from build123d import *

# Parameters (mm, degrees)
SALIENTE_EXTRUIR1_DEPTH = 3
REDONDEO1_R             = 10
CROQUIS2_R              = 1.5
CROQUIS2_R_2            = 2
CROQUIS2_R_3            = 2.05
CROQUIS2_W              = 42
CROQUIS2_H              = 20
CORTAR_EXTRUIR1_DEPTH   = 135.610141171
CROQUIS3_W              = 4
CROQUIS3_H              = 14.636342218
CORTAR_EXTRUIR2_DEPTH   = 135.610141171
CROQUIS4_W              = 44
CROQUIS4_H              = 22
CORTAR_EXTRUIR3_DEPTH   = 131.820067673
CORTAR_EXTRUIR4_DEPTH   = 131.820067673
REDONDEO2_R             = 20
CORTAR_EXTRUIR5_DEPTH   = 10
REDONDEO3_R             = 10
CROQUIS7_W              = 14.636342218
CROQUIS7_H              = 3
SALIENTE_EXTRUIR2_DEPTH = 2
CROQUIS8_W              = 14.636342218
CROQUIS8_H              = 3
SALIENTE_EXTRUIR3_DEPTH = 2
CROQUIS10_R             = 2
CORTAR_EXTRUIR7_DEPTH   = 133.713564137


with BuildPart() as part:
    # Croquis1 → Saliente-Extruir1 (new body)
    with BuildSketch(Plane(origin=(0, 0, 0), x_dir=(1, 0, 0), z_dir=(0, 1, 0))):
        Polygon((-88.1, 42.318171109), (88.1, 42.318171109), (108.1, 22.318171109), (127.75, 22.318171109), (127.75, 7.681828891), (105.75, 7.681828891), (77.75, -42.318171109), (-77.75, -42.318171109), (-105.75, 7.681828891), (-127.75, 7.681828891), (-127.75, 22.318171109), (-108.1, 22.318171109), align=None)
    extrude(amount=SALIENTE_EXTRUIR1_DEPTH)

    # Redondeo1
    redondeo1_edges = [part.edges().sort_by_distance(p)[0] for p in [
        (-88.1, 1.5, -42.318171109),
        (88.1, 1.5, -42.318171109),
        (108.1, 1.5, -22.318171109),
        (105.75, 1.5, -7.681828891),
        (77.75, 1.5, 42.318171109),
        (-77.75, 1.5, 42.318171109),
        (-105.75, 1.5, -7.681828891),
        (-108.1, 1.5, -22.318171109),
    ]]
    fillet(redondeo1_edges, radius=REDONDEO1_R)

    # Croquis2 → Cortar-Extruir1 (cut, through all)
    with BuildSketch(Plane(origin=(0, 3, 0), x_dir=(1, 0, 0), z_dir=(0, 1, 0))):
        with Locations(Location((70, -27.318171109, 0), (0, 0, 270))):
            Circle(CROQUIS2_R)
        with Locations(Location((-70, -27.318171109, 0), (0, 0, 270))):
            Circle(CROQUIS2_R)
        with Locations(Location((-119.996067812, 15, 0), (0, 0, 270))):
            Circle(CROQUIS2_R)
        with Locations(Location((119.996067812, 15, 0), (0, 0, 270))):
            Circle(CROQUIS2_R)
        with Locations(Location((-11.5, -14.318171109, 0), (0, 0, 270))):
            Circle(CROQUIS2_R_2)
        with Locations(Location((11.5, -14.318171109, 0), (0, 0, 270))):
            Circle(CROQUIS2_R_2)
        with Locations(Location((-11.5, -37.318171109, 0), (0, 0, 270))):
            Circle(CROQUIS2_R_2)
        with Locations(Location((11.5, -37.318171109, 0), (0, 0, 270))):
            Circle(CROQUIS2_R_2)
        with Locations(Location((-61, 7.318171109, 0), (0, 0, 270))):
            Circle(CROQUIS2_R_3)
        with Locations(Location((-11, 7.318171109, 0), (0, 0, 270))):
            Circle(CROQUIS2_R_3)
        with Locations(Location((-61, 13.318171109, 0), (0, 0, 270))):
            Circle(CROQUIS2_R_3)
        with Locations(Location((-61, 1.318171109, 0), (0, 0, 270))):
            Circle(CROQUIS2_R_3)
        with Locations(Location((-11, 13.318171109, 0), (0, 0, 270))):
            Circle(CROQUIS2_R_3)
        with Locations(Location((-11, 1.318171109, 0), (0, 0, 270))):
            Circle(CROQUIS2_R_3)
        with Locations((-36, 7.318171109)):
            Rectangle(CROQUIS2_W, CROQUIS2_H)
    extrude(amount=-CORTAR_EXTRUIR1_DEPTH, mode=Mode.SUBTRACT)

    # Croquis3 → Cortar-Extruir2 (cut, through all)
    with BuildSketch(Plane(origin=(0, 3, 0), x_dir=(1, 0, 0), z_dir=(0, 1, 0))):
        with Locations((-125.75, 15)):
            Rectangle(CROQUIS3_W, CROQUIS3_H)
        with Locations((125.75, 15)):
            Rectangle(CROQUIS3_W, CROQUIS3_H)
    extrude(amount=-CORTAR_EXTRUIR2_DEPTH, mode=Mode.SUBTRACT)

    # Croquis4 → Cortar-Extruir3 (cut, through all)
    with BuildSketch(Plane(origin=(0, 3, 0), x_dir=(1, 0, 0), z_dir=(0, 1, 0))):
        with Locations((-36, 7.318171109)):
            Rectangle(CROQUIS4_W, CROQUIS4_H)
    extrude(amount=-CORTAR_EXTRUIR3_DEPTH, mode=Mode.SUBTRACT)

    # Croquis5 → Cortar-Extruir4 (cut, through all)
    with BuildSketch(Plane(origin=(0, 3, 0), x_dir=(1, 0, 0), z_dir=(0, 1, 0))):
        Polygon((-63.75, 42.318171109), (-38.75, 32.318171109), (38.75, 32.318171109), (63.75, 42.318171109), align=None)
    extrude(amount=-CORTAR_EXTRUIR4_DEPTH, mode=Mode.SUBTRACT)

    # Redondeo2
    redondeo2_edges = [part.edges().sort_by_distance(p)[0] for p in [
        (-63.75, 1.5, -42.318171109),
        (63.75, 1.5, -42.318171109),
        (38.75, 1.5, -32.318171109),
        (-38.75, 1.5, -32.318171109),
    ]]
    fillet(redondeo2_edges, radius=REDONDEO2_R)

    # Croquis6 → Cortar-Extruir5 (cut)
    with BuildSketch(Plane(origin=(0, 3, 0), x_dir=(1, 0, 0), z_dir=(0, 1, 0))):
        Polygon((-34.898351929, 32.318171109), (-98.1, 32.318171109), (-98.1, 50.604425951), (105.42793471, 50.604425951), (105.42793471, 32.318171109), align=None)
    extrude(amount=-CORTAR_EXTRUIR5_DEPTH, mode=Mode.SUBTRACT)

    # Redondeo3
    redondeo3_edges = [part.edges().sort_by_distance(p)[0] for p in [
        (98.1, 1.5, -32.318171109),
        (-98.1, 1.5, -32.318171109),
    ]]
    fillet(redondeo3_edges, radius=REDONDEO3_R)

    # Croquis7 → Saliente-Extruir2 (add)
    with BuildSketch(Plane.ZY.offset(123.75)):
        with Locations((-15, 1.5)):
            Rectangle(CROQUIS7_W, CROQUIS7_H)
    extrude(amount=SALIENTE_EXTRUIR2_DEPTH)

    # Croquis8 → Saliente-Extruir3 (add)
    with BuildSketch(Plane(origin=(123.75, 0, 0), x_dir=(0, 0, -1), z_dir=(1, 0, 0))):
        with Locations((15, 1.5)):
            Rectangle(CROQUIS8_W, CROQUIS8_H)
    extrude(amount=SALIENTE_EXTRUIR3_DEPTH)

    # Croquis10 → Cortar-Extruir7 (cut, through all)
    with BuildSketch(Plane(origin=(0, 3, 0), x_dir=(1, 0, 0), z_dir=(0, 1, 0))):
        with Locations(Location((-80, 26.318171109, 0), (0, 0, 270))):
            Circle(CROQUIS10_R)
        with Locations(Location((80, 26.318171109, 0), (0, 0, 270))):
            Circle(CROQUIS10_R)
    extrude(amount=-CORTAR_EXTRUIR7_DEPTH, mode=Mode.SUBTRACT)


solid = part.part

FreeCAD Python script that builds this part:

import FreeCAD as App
import Part
import Sketcher
from FreeCAD import Vector


def edges_at(feature, points):
    """Names of the edges that pass closest to the given points."""
    edges = feature.Shape.Edges
    near = lambda p: min(range(len(edges)), key=lambda i: edges[i].distToShape(Part.Vertex(*p))[0])
    return sorted({f"Edge{near(p) + 1}" for p in points})

doc = App.newDocument("Part")
params = doc.addObject("Spreadsheet::Sheet", "Params")
for row, (alias, value) in enumerate([
    ("sketch1_width", "22 mm"),
    ("sketch1_width2", "176.2 mm"),
    ("sketch1_width3", "155.5 mm"),
    ("pad1_length", "3 mm"),
    ("fillet_radius", "10 mm"),
    ("sketch2_diameter", "3 mm"),
    ("sketch2_diameter2", "4 mm"),
    ("sketch2_diameter3", "4.1 mm"),
    ("sketch2_width", "42 mm"),
    ("sketch2_height", "20 mm"),
    ("sketch3_width", "4 mm"),
    ("sketch4_width", "44 mm"),
    ("sketch4_height", "22 mm"),
    ("sketch5_width", "77.5 mm"),
    ("sketch5_width2", "127.5 mm"),
    ("fillet2_radius", "20 mm"),
    ("pocket5_length", "10 mm"),
    ("fillet3_radius", "10 mm"),
    ("sketch7_width", "3 mm"),
    ("pad2_length", "2 mm"),
    ("sketch8_width", "3 mm"),
    ("pad3_length", "2 mm"),
    ("sketch9_diameter", "4 mm"),
], start=1):
    params.set(f"A{row}", alias)
    params.set(f"B{row}", "=" + value)
    params.setAlias(f"B{row}", alias)

body = doc.addObject("PartDesign::Body", "Body")

# Sketch on XZ plane
sketch1 = body.newObject("Sketcher::SketchObject", "Sketch")
sketch1.AttachmentSupport = (doc.getObject("XZ_Plane"), [""])
sketch1.MapMode = "FlatFace"
sketch1.addGeometry([
    Part.LineSegment(Vector(88, -42, 0), Vector(-88, -42, 0)),  # 0
    Part.LineSegment(Vector(-88, -42, 0), Vector(-108, -22, 0)),  # 1
    Part.LineSegment(Vector(-108, -22, 0), Vector(-128, -22, 0)),  # 2
    Part.LineSegment(Vector(-128, -22, 0), Vector(-128, -8, 0)),  # 3
    Part.LineSegment(Vector(-128, -8, 0), Vector(-106, -8, 0)),  # 4
    Part.LineSegment(Vector(-106, -8, 0), Vector(-78, 42, 0)),  # 5
    Part.LineSegment(Vector(-78, 42, 0), Vector(78, 42, 0)),  # 6
    Part.LineSegment(Vector(78, 42, 0), Vector(106, -8, 0)),  # 7
    Part.LineSegment(Vector(106, -8, 0), Vector(128, -8, 0)),  # 8
    Part.LineSegment(Vector(128, -8, 0), Vector(128, -22, 0)),  # 9
    Part.LineSegment(Vector(128, -22, 0), Vector(108, -22, 0)),  # 10
    Part.LineSegment(Vector(108, -22, 0), Vector(88, -42, 0)),  # 11
], False)
sketch1.addConstraint([
    Sketcher.Constraint("Coincident", 0, 2, 1, 1),
    Sketcher.Constraint("Coincident", 1, 2, 2, 1),
    Sketcher.Constraint("Coincident", 2, 2, 3, 1),
    Sketcher.Constraint("Coincident", 3, 2, 4, 1),
    Sketcher.Constraint("Coincident", 4, 2, 5, 1),
    Sketcher.Constraint("Coincident", 5, 2, 6, 1),
    Sketcher.Constraint("Coincident", 6, 2, 7, 1),
    Sketcher.Constraint("Coincident", 7, 2, 8, 1),
    Sketcher.Constraint("Coincident", 8, 2, 9, 1),
    Sketcher.Constraint("Coincident", 9, 2, 10, 1),
    Sketcher.Constraint("Coincident", 10, 2, 11, 1),
    Sketcher.Constraint("Coincident", 11, 2, 0, 1),
    Sketcher.Constraint("Horizontal", 0),
    Sketcher.Constraint("Horizontal", 2),
    Sketcher.Constraint("Vertical", 3),
    Sketcher.Constraint("Horizontal", 4),
    Sketcher.Constraint("Horizontal", 6),
    Sketcher.Constraint("Horizontal", 8),
    Sketcher.Constraint("Vertical", 9),
    Sketcher.Constraint("Horizontal", 10),
    Sketcher.Constraint("Symmetric", 4, 2, 7, 2, -2),
    Sketcher.Constraint("Symmetric", 2, 2, 9, 2, -2),
    Sketcher.Constraint("Perpendicular", 1, 11),
    Sketcher.Constraint("Equal", 2, 10),
    Sketcher.Constraint("Equal", 5, 7),
    Sketcher.Constraint("Equal", 1, 11),
    Sketcher.Constraint("DistanceX", 4, 1, 4, 2, 22.0),
    Sketcher.Constraint("DistanceX", 0, 2, 0, 1, 176.2),
    Sketcher.Constraint("DistanceX", 6, 1, 6, 2, 155.5),
    Sketcher.Constraint("DistanceX", 1, 2, 0, 2, 20.0),
    Sketcher.Constraint("DistanceX", 4, 2, 5, 2, 28.0),
    Sketcher.Constraint("DistanceY", 4, 2, 5, 2, 50.0),
    Sketcher.Constraint("DistanceY", 3, 1, 3, 2, 14.636342),
    Sketcher.Constraint("DistanceY", 0, 2, -1, 1, 42.318171),
])
sketch1.setExpression("Constraints[26]", "Params.sketch1_width")
sketch1.setExpression("Constraints[27]", "Params.sketch1_width2")
sketch1.setExpression("Constraints[28]", "Params.sketch1_width3")
pad1 = body.newObject("PartDesign::Pad", "Pad")
pad1.Profile = sketch1
pad1.setExpression("Length", "Params.pad1_length")
pad1.Reversed = True
doc.recompute()

fillet = body.newObject("PartDesign::Fillet", "Fillet")
fillet.Base = (pad1, edges_at(pad1, [
    (-88.1, 1.5, -42.318),
    (88.1, 1.5, -42.318),
    (108.1, 1.5, -22.318),
    (105.75, 1.5, -7.682),
    (77.75, 1.5, 42.318),
    (-77.75, 1.5, 42.318),
    (-105.75, 1.5, -7.682),
    (-108.1, 1.5, -22.318),
]))
fillet.setExpression("Radius", "Params.fillet_radius")

# Sketch on XZ plane
sketch2 = body.newObject("Sketcher::SketchObject", "Sketch001")
sketch2.AttachmentSupport = (doc.getObject("XZ_Plane"), [""])
sketch2.MapMode = "FlatFace"
sketch2.AttachmentOffset = App.Placement(Vector(0, 0, -3), App.Rotation())
sketch2.addGeometry([
    Part.Circle(Vector(70, 27.3, 0), Vector(0, 0, 1), 1.5),  # 0
    Part.Circle(Vector(-70, 27.3, 0), Vector(0, 0, 1), 1.5),  # 1
    Part.Circle(Vector(-120, -15, 0), Vector(0, 0, 1), 1.5),  # 2
    Part.Circle(Vector(120, -15, 0), Vector(0, 0, 1), 1.5),  # 3
    Part.Circle(Vector(-11.5, 14.3, 0), Vector(0, 0, 1), 2),  # 4
    Part.Circle(Vector(11.5, 14.3, 0), Vector(0, 0, 1), 2),  # 5
    Part.Circle(Vector(-11.5, 37.3, 0), Vector(0, 0, 1), 2),  # 6
    Part.Circle(Vector(11.5, 37.3, 0), Vector(0, 0, 1), 2),  # 7
    Part.Circle(Vector(-61, -7.3, 0), Vector(0, 0, 1), 2),  # 8
    Part.Circle(Vector(-11, -7.3, 0), Vector(0, 0, 1), 2),  # 9
    Part.Circle(Vector(-61, -13.3, 0), Vector(0, 0, 1), 2),  # 10
    Part.Circle(Vector(-61, -1.3, 0), Vector(0, 0, 1), 2),  # 11
    Part.Circle(Vector(-11, -13.3, 0), Vector(0, 0, 1), 2),  # 12
    Part.Circle(Vector(-11, -1.3, 0), Vector(0, 0, 1), 2),  # 13
    Part.LineSegment(Vector(-57, -17.3, 0), Vector(-57, 2.7, 0)),  # 14
    Part.LineSegment(Vector(-57, 2.7, 0), Vector(-15, 2.7, 0)),  # 15
    Part.LineSegment(Vector(-15, 2.7, 0), Vector(-15, -17.3, 0)),  # 16
    Part.LineSegment(Vector(-15, -17.3, 0), Vector(-57, -17.3, 0)),  # 17
], False)
sketch2.addConstraint([
    Sketcher.Constraint("Coincident", 14, 2, 15, 1),
    Sketcher.Constraint("Coincident", 15, 2, 16, 1),
    Sketcher.Constraint("Coincident", 16, 2, 17, 1),
    Sketcher.Constraint("Coincident", 17, 2, 14, 1),
    Sketcher.Constraint("Vertical", 14),
    Sketcher.Constraint("Horizontal", 15),
    Sketcher.Constraint("Vertical", 16),
    Sketcher.Constraint("Horizontal", 17),
    Sketcher.Constraint("Equal", 0, 1),
    Sketcher.Constraint("Equal", 1, 2),
    Sketcher.Constraint("Equal", 2, 3),
    Sketcher.Constraint("Equal", 4, 5),
    Sketcher.Constraint("Equal", 5, 6),
    Sketcher.Constraint("Equal", 6, 7),
    Sketcher.Constraint("Equal", 8, 9),
    Sketcher.Constraint("Equal", 9, 10),
    Sketcher.Constraint("Equal", 10, 11),
    Sketcher.Constraint("Equal", 11, 12),
    Sketcher.Constraint("Equal", 12, 13),
    Sketcher.Constraint("Symmetric", 0, 3, 1, 3, -2),
    Sketcher.Constraint("Symmetric", 2, 3, 3, 3, -2),
    Sketcher.Constraint("Symmetric", 4, 3, 5, 3, -2),
    Sketcher.Constraint("Symmetric", 6, 3, 7, 3, -2),
    Sketcher.Constraint("Horizontal", 8, 3, 9, 3),
    Sketcher.Constraint("Horizontal", 10, 3, 12, 3),
    Sketcher.Constraint("Horizontal", 11, 3, 13, 3),
    Sketcher.Constraint("Vertical", 4, 3, 6, 3),
    Sketcher.Constraint("Vertical", 8, 3, 10, 3),
    Sketcher.Constraint("Vertical", 10, 3, 11, 3),
    Sketcher.Constraint("Vertical", 9, 3, 12, 3),
    Sketcher.Constraint("Vertical", 12, 3, 13, 3),
    Sketcher.Constraint("Diameter", 0, 3.0),
    Sketcher.Constraint("Diameter", 4, 4.0),
    Sketcher.Constraint("Diameter", 8, 4.1),
    Sketcher.Constraint("DistanceX", 15, 1, 15, 2, 42.0),
    Sketcher.Constraint("DistanceY", 14, 1, 14, 2, 20.0),
    Sketcher.Constraint("DistanceX", -1, 1, 0, 3, 70.0),
    Sketcher.Constraint("DistanceY", 2, 3, -1, 1, 15.0),
    Sketcher.Constraint("DistanceX", 8, 3, -1, 1, 61.0),
    Sketcher.Constraint("DistanceX", 9, 3, -1, 1, 11.0),
    Sketcher.Constraint("DistanceX", 14, 2, -1, 1, 57.0),
    Sketcher.Constraint("DistanceY", 4, 3, 1, 3, 13.0),
    Sketcher.Constraint("DistanceX", 4, 3, 5, 3, 23.0),
    Sketcher.Constraint("DistanceY", 4, 3, 6, 3, 23.0),
    Sketcher.Constraint("DistanceY", 10, 3, 8, 3, 6.0),
    Sketcher.Constraint("DistanceY", 8, 3, 11, 3, 6.0),
    Sketcher.Constraint("DistanceY", 11, 3, 14, 2, 4.0),
    Sketcher.Constraint("DistanceY", -1, 1, 0, 3, 27.318171),
    Sketcher.Constraint("DistanceY", 8, 3, -1, 1, 7.318171),
    Sketcher.Constraint("DistanceX", 2, 3, -1, 1, 119.996068),
])
sketch2.setExpression("Constraints[31]", "Params.sketch2_diameter")
sketch2.setExpression("Constraints[32]", "Params.sketch2_diameter2")
sketch2.setExpression("Constraints[33]", "Params.sketch2_diameter3")
sketch2.setExpression("Constraints[34]", "Params.sketch2_width")
sketch2.setExpression("Constraints[35]", "Params.sketch2_height")
pocket1 = body.newObject("PartDesign::Pocket", "Pocket")
pocket1.Profile = sketch2
pocket1.Type = "ThroughAll"
pocket1.Reversed = True

# Sketch on XZ plane
sketch3 = body.newObject("Sketcher::SketchObject", "Sketch002")
sketch3.AttachmentSupport = (doc.getObject("XZ_Plane"), [""])
sketch3.MapMode = "FlatFace"
sketch3.AttachmentOffset = App.Placement(Vector(0, 0, -3), App.Rotation())
sketch3.addGeometry([
    Part.LineSegment(Vector(-127.8, -22.3, 0), Vector(-127.8, -7.7, 0)),  # 0
    Part.LineSegment(Vector(-127.8, -7.7, 0), Vector(-123.8, -7.7, 0)),  # 1
    Part.LineSegment(Vector(-123.8, -7.7, 0), Vector(-123.8, -22.3, 0)),  # 2
    Part.LineSegment(Vector(-123.8, -22.3, 0), Vector(-127.8, -22.3, 0)),  # 3
    Part.LineSegment(Vector(123.8, -22.3, 0), Vector(123.8, -7.7, 0)),  # 4
    Part.LineSegment(Vector(123.8, -7.7, 0), Vector(127.8, -7.7, 0)),  # 5
    Part.LineSegment(Vector(127.8, -7.7, 0), Vector(127.8, -22.3, 0)),  # 6
    Part.LineSegment(Vector(127.8, -22.3, 0), Vector(123.8, -22.3, 0)),  # 7
], False)
sketch3.addConstraint([
    Sketcher.Constraint("Coincident", 0, 2, 1, 1),
    Sketcher.Constraint("Coincident", 1, 2, 2, 1),
    Sketcher.Constraint("Coincident", 2, 2, 3, 1),
    Sketcher.Constraint("Coincident", 3, 2, 0, 1),
    Sketcher.Constraint("Coincident", 4, 2, 5, 1),
    Sketcher.Constraint("Coincident", 5, 2, 6, 1),
    Sketcher.Constraint("Coincident", 6, 2, 7, 1),
    Sketcher.Constraint("Coincident", 7, 2, 4, 1),
    Sketcher.Constraint("Vertical", 0),
    Sketcher.Constraint("Horizontal", 1),
    Sketcher.Constraint("Vertical", 2),
    Sketcher.Constraint("Horizontal", 3),
    Sketcher.Constraint("Vertical", 4),
    Sketcher.Constraint("Horizontal", 5),
    Sketcher.Constraint("Vertical", 6),
    Sketcher.Constraint("Horizontal", 7),
    Sketcher.Constraint("Symmetric", 1, 2, 4, 2, -2),
    Sketcher.Constraint("Symmetric", 3, 2, 6, 2, -2),
    Sketcher.Constraint("DistanceX", 1, 1, 1, 2, 4.0),
    Sketcher.Constraint("DistanceX", 1, 2, 4, 2, 247.5),
    Sketcher.Constraint("DistanceY", 0, 1, 0, 2, 14.636342),
    Sketcher.Constraint("DistanceY", 0, 2, -1, 1, 7.681829),
])
sketch3.setExpression("Constraints[18]", "Params.sketch3_width")
pocket2 = body.newObject("PartDesign::Pocket", "Pocket001")
pocket2.Profile = sketch3
pocket2.Type = "ThroughAll"
pocket2.Reversed = True

# Sketch on XZ plane
sketch4 = body.newObject("Sketcher::SketchObject", "Sketch003")
sketch4.AttachmentSupport = (doc.getObject("XZ_Plane"), [""])
sketch4.MapMode = "FlatFace"
sketch4.AttachmentOffset = App.Placement(Vector(0, 0, -3), App.Rotation())
sketch4.addGeometry([
    Part.LineSegment(Vector(-58, -18, 0), Vector(-58, 4, 0)),
    Part.LineSegment(Vector(-58, 4, 0), Vector(-14, 4, 0)),
    Part.LineSegment(Vector(-14, 4, 0), Vector(-14, -18, 0)),
    Part.LineSegment(Vector(-14, -18, 0), Vector(-58, -18, 0)),
], False)
sketch4.addConstraint([
    Sketcher.Constraint("Coincident", 0, 2, 1, 1),
    Sketcher.Constraint("Coincident", 1, 2, 2, 1),
    Sketcher.Constraint("Coincident", 2, 2, 3, 1),
    Sketcher.Constraint("Coincident", 3, 2, 0, 1),
    Sketcher.Constraint("Vertical", 0),
    Sketcher.Constraint("Horizontal", 1),
    Sketcher.Constraint("Vertical", 2),
    Sketcher.Constraint("Horizontal", 3),
    Sketcher.Constraint("DistanceX", 1, 1, 1, 2, 44.0),
    Sketcher.Constraint("DistanceY", 0, 1, 0, 2, 22.0),
    Sketcher.Constraint("DistanceX", 0, 2, -1, 1, 58.0),
    Sketcher.Constraint("DistanceY", -1, 1, 0, 2, 3.681829),
])
sketch4.setExpression("Constraints[8]", "Params.sketch4_width")
sketch4.setExpression("Constraints[9]", "Params.sketch4_height")
pocket3 = body.newObject("PartDesign::Pocket", "Pocket002")
pocket3.Profile = sketch4
pocket3.Type = "ThroughAll"
pocket3.Reversed = True

# Sketch on XZ plane
sketch5 = body.newObject("Sketcher::SketchObject", "Sketch004")
sketch5.AttachmentSupport = (doc.getObject("XZ_Plane"), [""])
sketch5.MapMode = "FlatFace"
sketch5.AttachmentOffset = App.Placement(Vector(0, 0, -3), App.Rotation())
sketch5.addGeometry([
    Part.LineSegment(Vector(-64, -42, 0), Vector(-39, -32, 0)),
    Part.LineSegment(Vector(-39, -32, 0), Vector(39, -32, 0)),
    Part.LineSegment(Vector(39, -32, 0), Vector(64, -42, 0)),
    Part.LineSegment(Vector(64, -42, 0), Vector(-64, -42, 0)),
], False)
sketch5.addConstraint([
    Sketcher.Constraint("Coincident", 0, 2, 1, 1),
    Sketcher.Constraint("Coincident", 1, 2, 2, 1),
    Sketcher.Constraint("Coincident", 2, 2, 3, 1),
    Sketcher.Constraint("Coincident", 3, 2, 0, 1),
    Sketcher.Constraint("Horizontal", 1),
    Sketcher.Constraint("Horizontal", 3),
    Sketcher.Constraint("Equal", 0, 2),
    Sketcher.Constraint("DistanceX", 1, 1, 1, 2, 77.5),
    Sketcher.Constraint("DistanceX", 3, 2, 3, 1, 127.5),
    Sketcher.Constraint("DistanceY", 2, 2, 1, 2, 10.0),
    Sketcher.Constraint("DistanceX", 0, 2, -1, 1, 38.75),
    Sketcher.Constraint("DistanceY", 0, 2, -1, 1, 32.318171),
])
sketch5.setExpression("Constraints[7]", "Params.sketch5_width")
sketch5.setExpression("Constraints[8]", "Params.sketch5_width2")
pocket4 = body.newObject("PartDesign::Pocket", "Pocket003")
pocket4.Profile = sketch5
pocket4.Type = "ThroughAll"
pocket4.Reversed = True
doc.recompute()

fillet2 = body.newObject("PartDesign::Fillet", "Fillet001")
fillet2.Base = (pocket4, edges_at(pocket4, [
    (-63.75, 1.5, -42.318),
    (63.75, 1.5, -42.318),
    (38.75, 1.5, -32.318),
    (-38.75, 1.5, -32.318),
]))
fillet2.setExpression("Radius", "Params.fillet2_radius")

# Sketch on XZ plane
sketch6 = body.newObject("Sketcher::SketchObject", "Sketch005")
sketch6.AttachmentSupport = (doc.getObject("XZ_Plane"), [""])
sketch6.MapMode = "FlatFace"
sketch6.AttachmentOffset = App.Placement(Vector(0, 0, -3), App.Rotation())
sketch6.addGeometry([
    Part.LineSegment(Vector(-98, -32, 0), Vector(105, -32, 0)),
    Part.LineSegment(Vector(105, -32, 0), Vector(105, -51, 0)),
    Part.LineSegment(Vector(105, -51, 0), Vector(-98, -51, 0)),
    Part.LineSegment(Vector(-98, -51, 0), Vector(-98, -32, 0)),
], False)
sketch6.addConstraint([
    Sketcher.Constraint("Coincident", 0, 2, 1, 1),
    Sketcher.Constraint("Coincident", 1, 2, 2, 1),
    Sketcher.Constraint("Coincident", 2, 2, 3, 1),
    Sketcher.Constraint("Coincident", 3, 2, 0, 1),
    Sketcher.Constraint("Horizontal", 0),
    Sketcher.Constraint("Vertical", 1),
    Sketcher.Constraint("Horizontal", 2),
    Sketcher.Constraint("Vertical", 3),
    Sketcher.Constraint("DistanceX", 2, 2, -1, 1, 98.1),
    Sketcher.Constraint("DistanceX", 0, 1, 0, 2, 203.527935),
    Sketcher.Constraint("DistanceY", 1, 2, 1, 1, 18.286255),
    Sketcher.Constraint("DistanceY", 0, 2, -1, 1, 32.318171),
])
pocket5 = body.newObject("PartDesign::Pocket", "Pocket004")
pocket5.Profile = sketch6
pocket5.setExpression("Length", "Params.pocket5_length")
pocket5.Reversed = True
doc.recompute()

fillet3 = body.newObject("PartDesign::Fillet", "Fillet002")
fillet3.Base = (pocket5, edges_at(pocket5, [(98.1, 1.5, -32.318), (-98.1, 1.5, -32.318)]))
fillet3.setExpression("Radius", "Params.fillet3_radius")

# Sketch on YZ plane
sketch7 = body.newObject("Sketcher::SketchObject", "Sketch006")
sketch7.AttachmentSupport = (doc.getObject("YZ_Plane"), [""])
sketch7.MapMode = "FlatFace"
sketch7.AttachmentOffset = App.Placement(Vector(0, 0, -123.75), App.Rotation())
sketch7.addGeometry([
    Part.LineSegment(Vector(3, -22.3, 0), Vector(0, -22.3, 0)),
    Part.LineSegment(Vector(0, -22.3, 0), Vector(0, -7.7, 0)),
    Part.LineSegment(Vector(0, -7.7, 0), Vector(3, -7.7, 0)),
    Part.LineSegment(Vector(3, -7.7, 0), Vector(3, -22.3, 0)),
], False)
sketch7.addConstraint([
    Sketcher.Constraint("Coincident", 0, 2, 1, 1),
    Sketcher.Constraint("Coincident", 1, 2, 2, 1),
    Sketcher.Constraint("Coincident", 2, 2, 3, 1),
    Sketcher.Constraint("Coincident", 3, 2, 0, 1),
    Sketcher.Constraint("Horizontal", 0),
    Sketcher.Constraint("Vertical", 1),
    Sketcher.Constraint("Horizontal", 2),
    Sketcher.Constraint("Vertical", 3),
    Sketcher.Constraint("PointOnObject", 0, 2, -2),
    Sketcher.Constraint("DistanceX", 0, 2, 0, 1, 3.0),
    Sketcher.Constraint("DistanceY", 1, 1, 1, 2, 14.636342),
    Sketcher.Constraint("DistanceY", 0, 2, -1, 1, 22.318171),
])
sketch7.setExpression("Constraints[9]", "Params.sketch7_width")
pad2 = body.newObject("PartDesign::Pad", "Pad001")
pad2.Profile = sketch7
pad2.setExpression("Length", "Params.pad2_length")
pad2.Reversed = True

# Sketch on YZ plane
sketch8 = body.newObject("Sketcher::SketchObject", "Sketch007")
sketch8.AttachmentSupport = (doc.getObject("YZ_Plane"), [""])
sketch8.MapMode = "FlatFace"
sketch8.AttachmentOffset = App.Placement(Vector(0, 0, 123.75), App.Rotation())
sketch8.addGeometry([
    Part.LineSegment(Vector(3, -7.7, 0), Vector(0, -7.7, 0)),
    Part.LineSegment(Vector(0, -7.7, 0), Vector(0, -22.3, 0)),
    Part.LineSegment(Vector(0, -22.3, 0), Vector(3, -22.3, 0)),
    Part.LineSegment(Vector(3, -22.3, 0), Vector(3, -7.7, 0)),
], False)
sketch8.addConstraint([
    Sketcher.Constraint("Coincident", 0, 2, 1, 1),
    Sketcher.Constraint("Coincident", 1, 2, 2, 1),
    Sketcher.Constraint("Coincident", 2, 2, 3, 1),
    Sketcher.Constraint("Coincident", 3, 2, 0, 1),
    Sketcher.Constraint("Horizontal", 0),
    Sketcher.Constraint("Vertical", 1),
    Sketcher.Constraint("Horizontal", 2),
    Sketcher.Constraint("Vertical", 3),
    Sketcher.Constraint("PointOnObject", 0, 2, -2),
    Sketcher.Constraint("DistanceX", 0, 2, 0, 1, 3.0),
    Sketcher.Constraint("DistanceY", 1, 2, 1, 1, 14.636342),
    Sketcher.Constraint("DistanceY", 0, 2, -1, 1, 7.681829),
])
sketch8.setExpression("Constraints[9]", "Params.sketch8_width")
pad3 = body.newObject("PartDesign::Pad", "Pad002")
pad3.Profile = sketch8
pad3.setExpression("Length", "Params.pad3_length")

# Sketch on XZ plane
sketch9 = body.newObject("Sketcher::SketchObject", "Sketch008")
sketch9.AttachmentSupport = (doc.getObject("XZ_Plane"), [""])
sketch9.MapMode = "FlatFace"
sketch9.AttachmentOffset = App.Placement(Vector(0, 0, -3), App.Rotation())
sketch9.addGeometry([
    Part.Circle(Vector(-80, -26.3, 0), Vector(0, 0, 1), 2),
    Part.Circle(Vector(80, -26.3, 0), Vector(0, 0, 1), 2),
], False)
sketch9.addConstraint([
    Sketcher.Constraint("Equal", 0, 1),
    Sketcher.Constraint("Symmetric", 0, 3, 1, 3, -2),
    Sketcher.Constraint("Diameter", 0, 4.0),
    Sketcher.Constraint("DistanceX", 0, 3, -1, 1, 80.0),
    Sketcher.Constraint("DistanceY", 0, 3, -1, 1, 26.318171),
])
sketch9.setExpression("Constraints[2]", "Params.sketch9_diameter")
pocket6 = body.newObject("PartDesign::Pocket", "Pocket005")
pocket6.Profile = sketch9
pocket6.Type = "ThroughAll"
pocket6.Reversed = True

doc.recompute()
